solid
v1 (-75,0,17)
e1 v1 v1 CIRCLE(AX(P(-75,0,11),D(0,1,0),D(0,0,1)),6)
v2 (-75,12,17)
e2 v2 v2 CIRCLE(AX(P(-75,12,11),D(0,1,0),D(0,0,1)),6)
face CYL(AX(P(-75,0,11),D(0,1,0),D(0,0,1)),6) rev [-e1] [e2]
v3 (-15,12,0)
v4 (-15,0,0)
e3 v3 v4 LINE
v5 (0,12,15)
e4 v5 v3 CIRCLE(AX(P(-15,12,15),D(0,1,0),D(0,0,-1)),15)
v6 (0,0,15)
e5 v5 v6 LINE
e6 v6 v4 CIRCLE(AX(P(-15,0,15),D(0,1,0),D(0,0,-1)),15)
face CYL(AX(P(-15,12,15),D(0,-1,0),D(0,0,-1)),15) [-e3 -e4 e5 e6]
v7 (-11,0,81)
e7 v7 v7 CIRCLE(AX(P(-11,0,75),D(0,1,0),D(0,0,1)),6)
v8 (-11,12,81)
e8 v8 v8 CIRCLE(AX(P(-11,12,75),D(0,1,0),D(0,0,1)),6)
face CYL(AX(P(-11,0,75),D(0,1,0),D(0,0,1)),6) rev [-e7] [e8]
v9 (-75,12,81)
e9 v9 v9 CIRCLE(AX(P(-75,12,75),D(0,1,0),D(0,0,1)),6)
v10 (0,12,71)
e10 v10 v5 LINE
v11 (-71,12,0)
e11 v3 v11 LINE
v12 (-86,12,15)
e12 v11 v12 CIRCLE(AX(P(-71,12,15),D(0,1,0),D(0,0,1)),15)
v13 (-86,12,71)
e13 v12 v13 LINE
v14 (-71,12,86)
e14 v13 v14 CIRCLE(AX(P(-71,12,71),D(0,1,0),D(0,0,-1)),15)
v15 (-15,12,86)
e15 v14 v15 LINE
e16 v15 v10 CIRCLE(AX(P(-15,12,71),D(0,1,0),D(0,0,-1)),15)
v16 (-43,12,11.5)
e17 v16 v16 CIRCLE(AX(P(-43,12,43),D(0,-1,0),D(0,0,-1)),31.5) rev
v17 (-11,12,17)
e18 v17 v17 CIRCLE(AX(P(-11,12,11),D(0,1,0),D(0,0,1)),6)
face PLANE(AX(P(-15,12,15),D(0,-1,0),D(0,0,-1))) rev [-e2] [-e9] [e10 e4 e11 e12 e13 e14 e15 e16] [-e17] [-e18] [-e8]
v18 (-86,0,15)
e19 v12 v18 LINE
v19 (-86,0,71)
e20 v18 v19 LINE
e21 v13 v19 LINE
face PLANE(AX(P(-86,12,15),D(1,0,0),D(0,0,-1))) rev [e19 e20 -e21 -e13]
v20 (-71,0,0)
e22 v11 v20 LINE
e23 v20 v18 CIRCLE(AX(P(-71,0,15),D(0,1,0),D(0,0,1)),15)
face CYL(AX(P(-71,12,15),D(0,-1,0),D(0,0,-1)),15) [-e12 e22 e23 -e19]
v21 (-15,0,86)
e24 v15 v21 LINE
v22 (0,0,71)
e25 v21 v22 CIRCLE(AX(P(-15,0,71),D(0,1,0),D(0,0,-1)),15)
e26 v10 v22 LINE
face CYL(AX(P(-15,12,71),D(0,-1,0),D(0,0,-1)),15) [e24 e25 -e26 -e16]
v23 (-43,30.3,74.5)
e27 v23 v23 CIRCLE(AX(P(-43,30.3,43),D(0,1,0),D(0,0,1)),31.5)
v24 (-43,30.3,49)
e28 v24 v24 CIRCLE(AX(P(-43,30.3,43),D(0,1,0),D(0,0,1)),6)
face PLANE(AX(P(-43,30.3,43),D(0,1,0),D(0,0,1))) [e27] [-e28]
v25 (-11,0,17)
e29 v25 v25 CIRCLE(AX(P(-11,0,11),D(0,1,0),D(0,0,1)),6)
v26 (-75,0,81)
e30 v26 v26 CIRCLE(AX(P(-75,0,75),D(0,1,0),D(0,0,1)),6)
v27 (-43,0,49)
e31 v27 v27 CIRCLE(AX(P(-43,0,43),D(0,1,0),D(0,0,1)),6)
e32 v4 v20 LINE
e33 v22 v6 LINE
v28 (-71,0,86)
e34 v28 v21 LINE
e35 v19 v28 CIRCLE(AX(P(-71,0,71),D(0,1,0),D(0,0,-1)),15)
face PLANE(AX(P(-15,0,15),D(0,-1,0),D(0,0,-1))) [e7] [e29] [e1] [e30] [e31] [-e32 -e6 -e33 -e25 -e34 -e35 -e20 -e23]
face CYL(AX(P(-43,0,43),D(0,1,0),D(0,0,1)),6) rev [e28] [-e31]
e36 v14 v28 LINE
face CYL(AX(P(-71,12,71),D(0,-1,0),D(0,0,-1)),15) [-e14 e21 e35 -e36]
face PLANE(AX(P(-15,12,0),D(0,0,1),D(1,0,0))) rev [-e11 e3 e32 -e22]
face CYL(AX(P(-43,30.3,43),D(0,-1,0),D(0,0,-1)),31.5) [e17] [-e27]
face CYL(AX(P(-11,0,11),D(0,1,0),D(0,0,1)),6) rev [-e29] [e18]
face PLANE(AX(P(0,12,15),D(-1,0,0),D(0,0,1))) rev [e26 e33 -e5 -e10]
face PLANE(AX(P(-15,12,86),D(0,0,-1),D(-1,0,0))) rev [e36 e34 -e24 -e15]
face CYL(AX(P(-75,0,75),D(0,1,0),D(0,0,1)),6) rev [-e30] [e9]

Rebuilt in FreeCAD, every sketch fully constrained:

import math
import FreeCAD as App
import Part
import Sketcher
from FreeCAD import Vector

doc = App.newDocument("Part")
params = doc.addObject("Spreadsheet::Sheet", "Params")
for row, (alias, value) in enumerate([
    ("sketch1_radius", "15 mm"),
    ("sketch1_width", "56 mm"),
    ("pad1_length", "12 mm"),
    ("sketch2_diameter", "12 mm"),
    ("pocket1_length", "12 mm"),
    ("sketch3_diameter", "63 mm"),
    ("pad2_length", "18.3 mm"),
    ("sketch4_diameter", "12 mm"),
], start=1):
    params.set(f"A{row}", alias)
    params.set(f"B{row}", "=" + value)
    params.setAlias(f"B{row}", alias)

body = doc.addObject("PartDesign::Body", "Body")

sketch1 = body.newObject("Sketcher::SketchObject", "Sketch")
sketch1.AttachmentSupport = (doc.getObject("XZ_Plane"), [""])
sketch1.MapMode = "FlatFace"
sketch1.addGeometry(Part.LineSegment(Vector(-15, 0, 0), Vector(-71, 0, 0)), False)
sketch1.addGeometry(Part.ArcOfCircle(Part.Circle(Vector(-71, 15, 0), Vector(0, 0, 1), 15), math.radians(180), math.radians(270)), False)
sketch1.addGeometry(Part.LineSegment(Vector(-86, 15, 0), Vector(-86, 71, 0)), False)
sketch1.addGeometry(Part.ArcOfCircle(Part.Circle(Vector(-71, 71, 0), Vector(0, 0, 1), 15), math.radians(90), math.radians(180)), False)
sketch1.addGeometry(Part.LineSegment(Vector(-71, 86, 0), Vector(-15, 86, 0)), False)
sketch1.addGeometry(Part.ArcOfCircle(Part.Circle(Vector(-15, 71, 0), Vector(0, 0, 1), 15), math.radians(0), math.radians(90)), False)
sketch1.addGeometry(Part.LineSegment(Vector(0, 71, 0), Vector(0, 15, 0)), False)
sketch1.addGeometry(Part.ArcOfCircle(Part.Circle(Vector(-15, 15, 0), Vector(0, 0, 1), 15), math.radians(-90), math.radians(0)), False)
sketch1.addConstraint(Sketcher.Constraint("Tangent", 0, 2, 1, 2))
sketch1.addConstraint(Sketcher.Constraint("Tangent", 1, 1, 2, 1))
sketch1.addConstraint(Sketcher.Constraint("Tangent", 2, 2, 3, 2))
sketch1.addConstraint(Sketcher.Constraint("Tangent", 3, 1, 4, 1))
sketch1.addConstraint(Sketcher.Constraint("Tangent", 4, 2, 5, 2))
sketch1.addConstraint(Sketcher.Constraint("Tangent", 5, 1, 6, 1))
sketch1.addConstraint(Sketcher.Constraint("Tangent", 6, 2, 7, 2))
sketch1.addConstraint(Sketcher.Constraint("Tangent", 7, 1, 0, 1))
sketch1.addConstraint(Sketcher.Constraint("Horizontal", 0))
sketch1.addConstraint(Sketcher.Constraint("Vertical", 2))
sketch1.addConstraint(Sketcher.Constraint("Horizontal", 4))
sketch1.addConstraint(Sketcher.Constraint("Vertical", 6))
sketch1.addConstraint(Sketcher.Constraint("Equal", 1, 3))
sketch1.addConstraint(Sketcher.Constraint("Equal", 3, 5))
sketch1.addConstraint(Sketcher.Constraint("Equal", 5, 7))
sketch1.addConstraint(Sketcher.Constraint("PointOnObject", 0, 2, -1))
sketch1.addConstraint(Sketcher.Constraint("PointOnObject", 5, 1, -2))
sketch1.addConstraint(Sketcher.Constraint("Equal", 4, 2))
sketch1.addConstraint(Sketcher.Constraint("Radius", 1, 15.0))
sketch1.addConstraint(Sketcher.Constraint("DistanceX", 0, 2, 0, 1, 56.0))
sketch1.setExpression("Constraints[18]", "Params.sketch1_radius")
sketch1.setExpression("Constraints[19]", "Params.sketch1_width")
pad1 = body.newObject("PartDesign::Pad", "Pad")
pad1.Profile = sketch1
pad1.setExpression("Length", "Params.pad1_length")
pad1.Reversed = True

sketch2 = body.newObject("Sketcher::SketchObject", "Sketch001")
sketch2.AttachmentSupport = (doc.getObject("XZ_Plane"), [""])
sketch2.MapMode = "FlatFace"
sketch2.AttachmentOffset = App.Placement(Vector(0, 0, -12), App.Rotation())
sketch2.addGeometry(Part.Circle(Vector(-75, 11, 0), Vector(0, 0, 1), 6), False)
sketch2.addGeometry(Part.Circle(Vector(-11, 11, 0), Vector(0, 0, 1), 6), False)
sketch2.addGeometry(Part.Circle(Vector(-11, 75, 0), Vector(0, 0, 1), 6), False)
sketch2.addGeometry(Part.Circle(Vector(-75, 75, 0), Vector(0, 0, 1), 6), False)
sketch2.addConstraint(Sketcher.Constraint("Equal", 0, 1))
sketch2.addConstraint(Sketcher.Constraint("Equal", 1, 2))
sketch2.addConstraint(Sketcher.Constraint("Equal", 2, 3))
sketch2.addConstraint(Sketcher.Constraint("Horizontal", 0, 3, 1, 3))
sketch2.addConstraint(Sketcher.Constraint("Horizontal", 2, 3, 3, 3))
sketch2.addConstraint(Sketcher.Constraint("Vertical", 1, 3, 2, 3))
sketch2.addConstraint(Sketcher.Constraint("Vertical", 0, 3, 3, 3))
sketch2.addConstraint(Sketcher.Constraint("Diameter", 0, 12.0))
sketch2.addConstraint(Sketcher.Constraint("DistanceX", 0, 3, -1, 1, 75.0))
sketch2.addConstraint(Sketcher.Constraint("DistanceY", -1, 1, 0, 3, 11.0))
sketch2.addConstraint(Sketcher.Constraint("DistanceX", 1, 3, -1, 1, 11.0))
sketch2.addConstraint(Sketcher.Constraint("DistanceY", -1, 1, 2, 3, 75.0))
sketch2.setExpression("Constraints[7]", "Params.sketch2_diameter")
pocket1 = body.newObject("PartDesign::Pocket", "Pocket")
pocket1.Profile = sketch2
pocket1.setExpression("Length", "Params.pocket1_length")
pocket1.Reversed = True

sketch3 = body.newObject("Sketcher::SketchObject", "Sketch002")
sketch3.AttachmentSupport = (doc.getObject("XZ_Plane"), [""])
sketch3.MapMode = "FlatFace"
sketch3.AttachmentOffset = App.Placement(Vector(0, 0, -12), App.Rotation())
sketch3.addGeometry(Part.Circle(Vector(-43, 43, 0), Vector(0, 0, 1), 32), False)
sketch3.addConstraint(Sketcher.Constraint("Diameter", 0, 63.0))
sketch3.addConstraint(Sketcher.Constraint("DistanceX", 0, 3, -1, 1, 43.0))
sketch3.addConstraint(Sketcher.Constraint("DistanceY", -1, 1, 0, 3, 43.0))
sketch3.setExpression("Constraints[0]", "Params.sketch3_diameter")
pad2 = body.newObject("PartDesign::Pad", "Pad001")
pad2.Profile = sketch3
pad2.setExpression("Length", "Params.pad2_length")
pad2.Reversed = True

sketch4 = body.newObject("Sketcher::SketchObject", "Sketch003")
sketch4.AttachmentSupport = (doc.getObject("XZ_Plane"), [""])
sketch4.MapMode = "FlatFace"
sketch4.AttachmentOffset = App.Placement(Vector(0, 0, -30.3), App.Rotation())
sketch4.addGeometry(Part.Circle(Vector(-43, 43, 0), Vector(0, 0, 1), 6), False)
sketch4.addConstraint(Sketcher.Constraint("Diameter", 0, 12.0))
sketch4.addConstraint(Sketcher.Constraint("DistanceX", 0, 3, -1, 1, 43.0))
sketch4.addConstraint(Sketcher.Constraint("DistanceY", -1, 1, 0, 3, 43.0))
sketch4.setExpression("Constraints[0]", "Params.sketch4_diameter")
pocket2 = body.newObject("PartDesign::Pocket", "Pocket001")
pocket2.Profile = sketch4
pocket2.Type = "ThroughAll"
pocket2.Reversed = True

doc.recompute()
